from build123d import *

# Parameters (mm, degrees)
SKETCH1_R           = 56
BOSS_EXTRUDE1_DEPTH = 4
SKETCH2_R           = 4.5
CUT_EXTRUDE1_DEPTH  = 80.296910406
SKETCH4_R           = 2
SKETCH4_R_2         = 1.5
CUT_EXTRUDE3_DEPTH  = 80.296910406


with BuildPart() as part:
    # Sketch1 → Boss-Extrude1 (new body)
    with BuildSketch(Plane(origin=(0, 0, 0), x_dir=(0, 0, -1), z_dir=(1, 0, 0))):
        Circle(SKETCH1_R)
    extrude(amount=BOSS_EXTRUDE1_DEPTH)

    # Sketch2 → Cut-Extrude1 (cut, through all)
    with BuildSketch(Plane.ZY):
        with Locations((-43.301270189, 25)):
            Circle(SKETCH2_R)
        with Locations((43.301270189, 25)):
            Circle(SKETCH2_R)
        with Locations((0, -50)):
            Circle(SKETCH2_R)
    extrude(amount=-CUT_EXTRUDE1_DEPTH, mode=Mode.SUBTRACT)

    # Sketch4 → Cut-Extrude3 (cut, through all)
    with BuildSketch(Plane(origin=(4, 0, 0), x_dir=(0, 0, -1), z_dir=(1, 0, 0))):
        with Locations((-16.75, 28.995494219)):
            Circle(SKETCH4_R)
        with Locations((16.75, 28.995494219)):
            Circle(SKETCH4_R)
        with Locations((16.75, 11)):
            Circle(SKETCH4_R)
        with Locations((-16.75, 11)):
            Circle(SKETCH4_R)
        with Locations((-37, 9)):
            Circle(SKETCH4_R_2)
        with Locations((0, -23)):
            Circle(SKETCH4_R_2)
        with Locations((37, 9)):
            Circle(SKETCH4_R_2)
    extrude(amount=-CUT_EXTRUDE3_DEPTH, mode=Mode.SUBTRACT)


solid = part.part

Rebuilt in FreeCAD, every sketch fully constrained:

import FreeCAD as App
import Part
import Sketcher
from FreeCAD import Vector
Q = App.Units.Quantity

doc = App.newDocument("Part")
body = doc.addObject("PartDesign::Body", "Body")

# Sketch on YZ plane
sketch1 = doc.addObject("Sketcher::SketchObject", "Sketch")
body.addObject(sketch1)
sketch1.AttachmentSupport = (doc.YZ_Plane, [""])
sketch1.MapMode = "FlatFace"
sketch1.addGeometry(Part.Circle(Vector(0, 0, 0), Vector(0, 0, 1), 56), False)
sketch1.addConstraint(Sketcher.Constraint("Coincident", 0, 3, -1, 1))
sketch1.addConstraint(Sketcher.Constraint("Diameter", 0, Q("112 mm")))
pad1 = doc.addObject("PartDesign::Pad", "Pad")
body.addObject(pad1)
pad1.Profile = sketch1
pad1.Length = 4

# Sketch on YZ plane
sketch2 = doc.addObject("Sketcher::SketchObject", "Sketch001")
body.addObject(sketch2)
sketch2.AttachmentSupport = (doc.YZ_Plane, [""])
sketch2.MapMode = "FlatFace"
sketch2.addGeometry(Part.Circle(Vector(25, -43.3, 0), Vector(0, 0, 1), 4.5), False)
sketch2.addGeometry(Part.Circle(Vector(25, 43.3, 0), Vector(0, 0, 1), 4.5), False)
sketch2.addGeometry(Part.Circle(Vector(-50, 0, 0), Vector(0, 0, 1), 4.5), False)
sketch2.addConstraint(Sketcher.Constraint("Equal", 0, 1))
sketch2.addConstraint(Sketcher.Constraint("Equal", 1, 2))
sketch2.addConstraint(Sketcher.Constraint("Symmetric", 0, 3, 1, 3, -1))
sketch2.addConstraint(Sketcher.Constraint("PointOnObject", 2, 3, -1))
sketch2.addConstraint(Sketcher.Constraint("Diameter", 0, Q("9 mm")))
sketch2.addConstraint(Sketcher.Constraint("DistanceX", -1, 1, 0, 3, Q("25 mm")))
sketch2.addConstraint(Sketcher.Constraint("DistanceX", 2, 3, -1, 1, Q("50 mm")))
sketch2.addConstraint(Sketcher.Constraint("DistanceY", 0, 3, -1, 1, Q("43.30127 mm")))
pocket1 = doc.addObject("PartDesign::Pocket", "Pocket")
body.addObject(pocket1)
pocket1.Profile = sketch2
pocket1.Type = "ThroughAll"
pocket1.Reversed = True

# Sketch on YZ plane
sketch3 = doc.addObject("Sketcher::SketchObject", "Sketch002")
body.addObject(sketch3)
sketch3.AttachmentSupport = (doc.YZ_Plane, [""])
sketch3.MapMode = "FlatFace"
sketch3.AttachmentOffset = App.Placement(Vector(0, 0, 4), App.Rotation())
sketch3.addGeometry(Part.Circle(Vector(29, 16.8, 0), Vector(0, 0, 1), 2), False)
sketch3.addGeometry(Part.Circle(Vector(29, -16.8, 0), Vector(0, 0, 1), 2), False)
sketch3.addGeometry(Part.Circle(Vector(11, -16.8, 0), Vector(0, 0, 1), 2), False)
sketch3.addGeometry(Part.Circle(Vector(11, 16.8, 0), Vector(0, 0, 1), 2), False)
sketch3.addGeometry(Part.Circle(Vector(9, 37, 0), Vector(0, 0, 1), 1.5), False)
sketch3.addGeometry(Part.Circle(Vector(-23, 0, 0), Vector(0, 0, 1), 1.5), False)
sketch3.addGeometry(Part.Circle(Vector(9, -37, 0), Vector(0, 0, 1), 1.5), False)
sketch3.addConstraint(Sketcher.Constraint("Equal", 0, 1))
sketch3.addConstraint(Sketcher.Constraint("Equal", 1, 2))
sketch3.addConstraint(Sketcher.Constraint("Equal", 2, 3))
sketch3.addConstraint(Sketcher.Constraint("Equal", 4, 5))
sketch3.addConstraint(Sketcher.Constraint("Equal", 5, 6))
sketch3.addConstraint(Sketcher.Constraint("Symmetric", 0, 3, 1, 3, -1))
sketch3.addConstraint(Sketcher.Constraint("Symmetric", 2, 3, 3, 3, -1))
sketch3.addConstraint(Sketcher.Constraint("Symmetric", 4, 3, 6, 3, -1))
sketch3.addConstraint(Sketcher.Constraint("PointOnObject", 5, 3, -1))
sketch3.addConstraint(Sketcher.Constraint("Horizontal", 1, 3, 2, 3))
sketch3.addConstraint(Sketcher.Constraint("Diameter", 0, Q("4 mm")))
sketch3.addConstraint(Sketcher.Constraint("Diameter", 4, Q("3 mm")))
sketch3.addConstraint(Sketcher.Constraint("DistanceX", -1, 1, 2, 3, Q("11 mm")))
sketch3.addConstraint(Sketcher.Constraint("DistanceX", -1, 1, 4, 3, Q("9 mm")))
sketch3.addConstraint(Sketcher.Constraint("DistanceY", -1, 1, 4, 3, Q("37 mm")))
sketch3.addConstraint(Sketcher.Constraint("DistanceX", 5, 3, -1, 1, Q("23 mm")))
sketch3.addConstraint(Sketcher.Constraint("DistanceY", 1, 3, 0, 3, Q("33.5 mm")))
sketch3.addConstraint(Sketcher.Constraint("DistanceX", -1, 1, 0, 3, Q("28.995494 mm")))
pocket2 = doc.addObject("PartDesign::Pocket", "Pocket001")
body.addObject(pocket2)
pocket2.Profile = sketch3
pocket2.Type = "ThroughAll"

doc.recompute()
